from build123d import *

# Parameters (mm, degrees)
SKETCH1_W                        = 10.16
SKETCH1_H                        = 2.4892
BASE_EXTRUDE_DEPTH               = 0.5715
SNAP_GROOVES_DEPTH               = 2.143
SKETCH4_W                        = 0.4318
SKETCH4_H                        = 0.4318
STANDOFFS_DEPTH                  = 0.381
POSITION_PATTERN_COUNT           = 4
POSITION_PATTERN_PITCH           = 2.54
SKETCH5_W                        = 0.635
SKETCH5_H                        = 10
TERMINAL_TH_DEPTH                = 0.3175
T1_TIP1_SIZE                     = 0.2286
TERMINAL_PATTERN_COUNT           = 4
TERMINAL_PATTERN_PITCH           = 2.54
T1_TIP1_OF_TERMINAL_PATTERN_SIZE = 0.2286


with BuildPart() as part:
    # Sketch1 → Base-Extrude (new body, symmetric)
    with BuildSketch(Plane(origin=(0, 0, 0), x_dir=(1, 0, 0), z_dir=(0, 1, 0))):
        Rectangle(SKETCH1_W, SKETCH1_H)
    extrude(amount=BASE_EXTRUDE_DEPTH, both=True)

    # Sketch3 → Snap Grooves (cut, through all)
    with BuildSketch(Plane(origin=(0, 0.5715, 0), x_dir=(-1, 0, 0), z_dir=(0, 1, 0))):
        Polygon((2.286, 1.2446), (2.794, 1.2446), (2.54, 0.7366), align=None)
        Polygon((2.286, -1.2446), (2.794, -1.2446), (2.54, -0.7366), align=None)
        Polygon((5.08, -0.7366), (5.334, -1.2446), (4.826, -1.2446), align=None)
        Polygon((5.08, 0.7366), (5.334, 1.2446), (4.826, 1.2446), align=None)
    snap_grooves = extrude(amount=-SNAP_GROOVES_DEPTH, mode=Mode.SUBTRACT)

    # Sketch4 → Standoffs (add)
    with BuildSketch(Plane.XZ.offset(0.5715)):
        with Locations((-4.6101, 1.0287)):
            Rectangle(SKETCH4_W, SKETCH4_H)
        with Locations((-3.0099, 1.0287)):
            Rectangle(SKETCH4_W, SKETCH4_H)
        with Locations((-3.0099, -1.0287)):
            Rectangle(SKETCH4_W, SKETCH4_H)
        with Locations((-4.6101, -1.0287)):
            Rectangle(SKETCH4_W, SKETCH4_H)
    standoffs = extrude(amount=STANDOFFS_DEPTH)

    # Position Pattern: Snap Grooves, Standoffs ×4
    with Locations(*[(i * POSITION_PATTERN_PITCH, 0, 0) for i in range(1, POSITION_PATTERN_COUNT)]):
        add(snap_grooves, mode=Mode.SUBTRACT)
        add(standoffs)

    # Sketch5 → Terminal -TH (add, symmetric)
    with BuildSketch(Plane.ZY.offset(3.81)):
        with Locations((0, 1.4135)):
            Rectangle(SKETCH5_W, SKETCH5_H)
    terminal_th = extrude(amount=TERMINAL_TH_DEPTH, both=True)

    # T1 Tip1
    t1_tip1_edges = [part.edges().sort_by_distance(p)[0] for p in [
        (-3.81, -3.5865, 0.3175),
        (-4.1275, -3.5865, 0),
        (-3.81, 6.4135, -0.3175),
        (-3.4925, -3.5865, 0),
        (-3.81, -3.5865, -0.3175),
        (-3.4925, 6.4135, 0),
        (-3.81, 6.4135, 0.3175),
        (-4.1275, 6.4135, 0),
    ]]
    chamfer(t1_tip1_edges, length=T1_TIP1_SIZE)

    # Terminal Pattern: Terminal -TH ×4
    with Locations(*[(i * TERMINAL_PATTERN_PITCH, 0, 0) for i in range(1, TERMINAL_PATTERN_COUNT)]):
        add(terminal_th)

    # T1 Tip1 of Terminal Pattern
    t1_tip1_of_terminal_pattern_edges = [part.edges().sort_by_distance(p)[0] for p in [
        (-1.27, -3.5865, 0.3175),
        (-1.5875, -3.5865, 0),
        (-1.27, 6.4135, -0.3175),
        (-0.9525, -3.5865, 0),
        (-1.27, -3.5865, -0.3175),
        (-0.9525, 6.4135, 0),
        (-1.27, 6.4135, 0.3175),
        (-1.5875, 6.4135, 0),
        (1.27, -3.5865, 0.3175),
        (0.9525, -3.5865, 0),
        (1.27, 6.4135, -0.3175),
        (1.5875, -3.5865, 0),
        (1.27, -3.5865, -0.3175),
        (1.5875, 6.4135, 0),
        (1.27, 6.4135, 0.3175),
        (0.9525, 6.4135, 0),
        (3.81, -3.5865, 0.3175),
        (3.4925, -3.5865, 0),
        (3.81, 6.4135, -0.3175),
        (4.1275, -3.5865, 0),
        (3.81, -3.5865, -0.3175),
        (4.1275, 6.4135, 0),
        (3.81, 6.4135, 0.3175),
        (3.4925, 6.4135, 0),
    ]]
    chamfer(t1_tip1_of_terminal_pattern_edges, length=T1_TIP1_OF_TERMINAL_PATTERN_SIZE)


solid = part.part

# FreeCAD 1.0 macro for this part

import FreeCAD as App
import Part
import Sketcher

V = App.Vector
Q = App.Units.Quantity


def edges_at(feature, points):
    """Names of the edges that pass closest to the given points."""
    edges = feature.Shape.Edges
    near = lambda p: min(range(len(edges)), key=lambda i: edges[i].distToShape(Part.Vertex(*p))[0])
    return sorted({f"Edge{near(p) + 1}" for p in points})

doc = App.newDocument("Part")
body = doc.addObject("PartDesign::Body", "Body")

sketch1 = body.newObject("Sketcher::SketchObject", "Sketch")
sketch1.AttachmentSupport = (doc.getObject("XZ_Plane"), [""])
sketch1.MapMode = "FlatFace"
sketch1.addGeometry(Part.LineSegment(V(-5.1, -1.2, 0), V(-5.1, 1.2, 0)), False)
sketch1.addGeometry(Part.LineSegment(V(-5.1, 1.2, 0), V(5.1, 1.2, 0)), False)
sketch1.addGeometry(Part.LineSegment(V(5.1, 1.2, 0), V(5.1, -1.2, 0)), False)
sketch1.addGeometry(Part.LineSegment(V(5.1, -1.2, 0), V(-5.1, -1.2, 0)), False)
sketch1.addConstraint(Sketcher.Constraint("Coincident", 0, 2, 1, 1))
sketch1.addConstraint(Sketcher.Constraint("Coincident", 1, 2, 2, 1))
sketch1.addConstraint(Sketcher.Constraint("Coincident", 2, 2, 3, 1))
sketch1.addConstraint(Sketcher.Constraint("Coincident", 3, 2, 0, 1))
sketch1.addConstraint(Sketcher.Constraint("Vertical", 0))
sketch1.addConstraint(Sketcher.Constraint("Horizontal", 1))
sketch1.addConstraint(Sketcher.Constraint("Vertical", 2))
sketch1.addConstraint(Sketcher.Constraint("Horizontal", 3))
sketch1.addConstraint(Sketcher.Constraint("Symmetric", 0, 2, 2, 2, -1, 1))
sketch1.addConstraint(Sketcher.Constraint("DistanceX", 1, 1, 1, 2, Q("0.4 in")))
sketch1.addConstraint(Sketcher.Constraint("DistanceY", 0, 1, 0, 2, Q("0.098 in")))
pad1 = body.newObject("PartDesign::Pad", "Pad")
pad1.Profile = sketch1
pad1.Length = Q("0.045 in")
pad1.Midplane = True

sketch2 = body.newObject("Sketcher::SketchObject", "Sketch001")
sketch2.AttachmentSupport = (doc.getObject("XZ_Plane"), [""])
sketch2.MapMode = "FlatFace"
sketch2.AttachmentOffset = App.Placement(V(0, 0, -0.0225 * 25.4), App.Rotation())
sketch2.addGeometry(Part.LineSegment(V(-2.8, 1.2, 0), V(-2.3, 1.2, 0)), False)
sketch2.addGeometry(Part.LineSegment(V(-2.3, 1.2, 0), V(-2.5, 0.7, 0)), False)
sketch2.addGeometry(Part.LineSegment(V(-2.5, 0.7, 0), V(-2.8, 1.2, 0)), False)
sketch2.addGeometry(Part.LineSegment(V(-2.3, -1.2, 0), V(-2.8, -1.2, 0)), False)
sketch2.addGeometry(Part.LineSegment(V(-2.8, -1.2, 0), V(-2.5, -0.7, 0)), False)
sketch2.addGeometry(Part.LineSegment(V(-2.5, -0.7, 0), V(-2.3, -1.2, 0)), False)
sketch2.addGeometry(Part.LineSegment(V(-5.3, -1.2, 0), V(-5.1, -0.7, 0)), False)
sketch2.addGeometry(Part.LineSegment(V(-5.1, -0.7, 0), V(-4.8, -1.2, 0)), False)
sketch2.addGeometry(Part.LineSegment(V(-4.8, -1.2, 0), V(-5.3, -1.2, 0)), False)
sketch2.addGeometry(Part.LineSegment(V(-5.1, 0.7, 0), V(-5.3, 1.2, 0)), False)
sketch2.addGeometry(Part.LineSegment(V(-5.3, 1.2, 0), V(-4.8, 1.2, 0)), False)
sketch2.addGeometry(Part.LineSegment(V(-4.8, 1.2, 0), V(-5.1, 0.7, 0)), False)
sketch2.addConstraint(Sketcher.Constraint("Coincident", 0, 2, 1, 1))
sketch2.addConstraint(Sketcher.Constraint("Coincident", 1, 2, 2, 1))
sketch2.addConstraint(Sketcher.Constraint("Coincident", 2, 2, 0, 1))
sketch2.addConstraint(Sketcher.Constraint("Coincident", 3, 2, 4, 1))
sketch2.addConstraint(Sketcher.Constraint("Coincident", 4, 2, 5, 1))
sketch2.addConstraint(Sketcher.Constraint("Coincident", 5, 2, 3, 1))
sketch2.addConstraint(Sketcher.Constraint("Coincident", 6, 2, 7, 1))
sketch2.addConstraint(Sketcher.Constraint("Coincident", 7, 2, 8, 1))
sketch2.addConstraint(Sketcher.Constraint("Coincident", 8, 2, 6, 1))
sketch2.addConstraint(Sketcher.Constraint("Coincident", 9, 2, 10, 1))
sketch2.addConstraint(Sketcher.Constraint("Coincident", 10, 2, 11, 1))
sketch2.addConstraint(Sketcher.Constraint("Coincident", 11, 2, 9, 1))
sketch2.addConstraint(Sketcher.Constraint("Horizontal", 0))
sketch2.addConstraint(Sketcher.Constraint("Horizontal", 3))
sketch2.addConstraint(Sketcher.Constraint("Horizontal", 8))
sketch2.addConstraint(Sketcher.Constraint("Horizontal", 10))
sketch2.addConstraint(Sketcher.Constraint("Symmetric", 2, 2, 3, 2, -1))
sketch2.addConstraint(Sketcher.Constraint("Symmetric", 1, 2, 4, 2, -1))
sketch2.addConstraint(Sketcher.Constraint("Symmetric", 8, 2, 9, 2, -1))
sketch2.addConstraint(Sketcher.Constraint("Symmetric", 6, 2, 11, 2, -1))
sketch2.addConstraint(Sketcher.Constraint("Parallel", 1, 4))
sketch2.addConstraint(Sketcher.Constraint("Parallel", 2, 5))
sketch2.addConstraint(Sketcher.Constraint("Parallel", 4, 6))
sketch2.addConstraint(Sketcher.Constraint("Parallel", 5, 7))
sketch2.addConstraint(Sketcher.Constraint("Parallel", 6, 11))
sketch2.addConstraint(Sketcher.Constraint("Horizontal", 4, 2, 6, 2))
sketch2.addConstraint(Sketcher.Constraint("Horizontal", 5, 2, 7, 2))
sketch2.addConstraint(Sketcher.Constraint("DistanceX", 0, 1, 0, 2, Q("0.02 in")))
sketch2.addConstraint(Sketcher.Constraint("DistanceX", 1, 2, -1, 1, Q("0.1 in")))
sketch2.addConstraint(Sketcher.Constraint("DistanceX", 6, 2, -1, 1, Q("0.2 in")))
sketch2.addConstraint(Sketcher.Constraint("DistanceY", 1, 2, 0, 2, Q("0.02 in")))
sketch2.addConstraint(Sketcher.Constraint("DistanceY", -1, 1, 0, 2, Q("0.049 in")))
pocket1 = body.newObject("PartDesign::Pocket", "Pocket")
pocket1.Profile = sketch2
pocket1.Type = "ThroughAll"
pocket1.Reversed = True

sketch3 = body.newObject("Sketcher::SketchObject", "Sketch002")
sketch3.AttachmentSupport = (doc.getObject("XZ_Plane"), [""])
sketch3.MapMode = "FlatFace"
sketch3.AttachmentOffset = App.Placement(V(0, 0, 0.0225 * 25.4), App.Rotation())
sketch3.addGeometry(Part.LineSegment(V(-4.83, 1.24, 0), V(-4.83, 0.81, 0)), False)
sketch3.addGeometry(Part.LineSegment(V(-4.83, 0.81, 0), V(-4.39, 0.81, 0)), False)
sketch3.addGeometry(Part.LineSegment(V(-4.39, 0.81, 0), V(-4.39, 1.24, 0)), False)
sketch3.addGeometry(Part.LineSegment(V(-4.39, 1.24, 0), V(-4.83, 1.24, 0)), False)
sketch3.addGeometry(Part.LineSegment(V(-3.23, 1.24, 0), V(-3.23, 0.81, 0)), False)
sketch3.addGeometry(Part.LineSegment(V(-3.23, 0.81, 0), V(-2.79, 0.81, 0)), False)
sketch3.addGeometry(Part.LineSegment(V(-2.79, 0.81, 0), V(-2.79, 1.24, 0)), False)
sketch3.addGeometry(Part.LineSegment(V(-2.79, 1.24, 0), V(-3.23, 1.24, 0)), False)
sketch3.addGeometry(Part.LineSegment(V(-3.23, -0.81, 0), V(-3.23, -1.24, 0)), False)
sketch3.addGeometry(Part.LineSegment(V(-3.23, -1.24, 0), V(-2.79, -1.24, 0)), False)
sketch3.addGeometry(Part.LineSegment(V(-2.79, -1.24, 0), V(-2.79, -0.81, 0)), False)
sketch3.addGeometry(Part.LineSegment(V(-2.79, -0.81, 0), V(-3.23, -0.81, 0)), False)
sketch3.addGeometry(Part.LineSegment(V(-4.83, -0.81, 0), V(-4.83, -1.24, 0)), False)
sketch3.addGeometry(Part.LineSegment(V(-4.83, -1.24, 0), V(-4.39, -1.24, 0)), False)
sketch3.addGeometry(Part.LineSegment(V(-4.39, -1.24, 0), V(-4.39, -0.81, 0)), False)
sketch3.addGeometry(Part.LineSegment(V(-4.39, -0.81, 0), V(-4.83, -0.81, 0)), False)
sketch3.addConstraint(Sketcher.Constraint("Coincident", 0, 2, 1, 1))
sketch3.addConstraint(Sketcher.Constraint("Coincident", 1, 2, 2, 1))
sketch3.addConstraint(Sketcher.Constraint("Coincident", 2, 2, 3, 1))
sketch3.addConstraint(Sketcher.Constraint("Coincident", 3, 2, 0, 1))
sketch3.addConstraint(Sketcher.Constraint("Coincident", 4, 2, 5, 1))
sketch3.addConstraint(Sketcher.Constraint("Coincident", 5, 2, 6, 1))
sketch3.addConstraint(Sketcher.Constraint("Coincident", 6, 2, 7, 1))
sketch3.addConstraint(Sketcher.Constraint("Coincident", 7, 2, 4, 1))
sketch3.addConstraint(Sketcher.Constraint("Coincident", 8, 2, 9, 1))
sketch3.addConstraint(Sketcher.Constraint("Coincident", 9, 2, 10, 1))
sketch3.addConstraint(Sketcher.Constraint("Coincident", 10, 2, 11, 1))
sketch3.addConstraint(Sketcher.Constraint("Coincident", 11, 2, 8, 1))
sketch3.addConstraint(Sketcher.Constraint("Coincident", 12, 2, 13, 1))
sketch3.addConstraint(Sketcher.Constraint("Coincident", 13, 2, 14, 1))
sketch3.addConstraint(Sketcher.Constraint("Coincident", 14, 2, 15, 1))
sketch3.addConstraint(Sketcher.Constraint("Coincident", 15, 2, 12, 1))
sketch3.addConstraint(Sketcher.Constraint("Vertical", 0))
sketch3.addConstraint(Sketcher.Constraint("Horizontal", 1))
sketch3.addConstraint(Sketcher.Constraint("Vertical", 2))
sketch3.addConstraint(Sketcher.Constraint("Horizontal", 3))
sketch3.addConstraint(Sketcher.Constraint("Vertical", 4))
sketch3.addConstraint(Sketcher.Constraint("Horizontal", 5))
sketch3.addConstraint(Sketcher.Constraint("Vertical", 6))
sketch3.addConstraint(Sketcher.Constraint("Horizontal", 7))
sketch3.addConstraint(Sketcher.Constraint("Vertical", 8))
sketch3.addConstraint(Sketcher.Constraint("Horizontal", 9))
sketch3.addConstraint(Sketcher.Constraint("Vertical", 10))
sketch3.addConstraint(Sketcher.Constraint("Horizontal", 11))
sketch3.addConstraint(Sketcher.Constraint("Vertical", 12))
sketch3.addConstraint(Sketcher.Constraint("Horizontal", 13))
sketch3.addConstraint(Sketcher.Constraint("Vertical", 14))
sketch3.addConstraint(Sketcher.Constraint("Horizontal", 15))
sketch3.addConstraint(Sketcher.Constraint("Symmetric", 7, 2, 8, 2, -1))
sketch3.addConstraint(Sketcher.Constraint("Symmetric", 5, 2, 10, 2, -1))
sketch3.addConstraint(Sketcher.Constraint("Symmetric", 3, 2, 12, 2, -1))
sketch3.addConstraint(Sketcher.Constraint("Symmetric", 1, 2, 14, 2, -1))
sketch3.addConstraint(Sketcher.Constraint("Horizontal", 1, 2, 4, 2))
sketch3.addConstraint(Sketcher.Constraint("Horizontal", 3, 2, 6, 2))
sketch3.addConstraint(Sketcher.Constraint("Equal", 3, 5))
sketch3.addConstraint(Sketcher.Constraint("Equal", 15, 0))
sketch3.addConstraint(Sketcher.Constraint("DistanceX", 1, 1, 1, 2, Q("0.017 in")))
sketch3.addConstraint(Sketcher.Constraint("DistanceX", 0, 2, -1, 1, Q("0.19 in")))
sketch3.addConstraint(Sketcher.Constraint("DistanceX", 5, 2, -1, 1, Q("0.11 in")))
sketch3.addConstraint(Sketcher.Constraint("DistanceY", -1, 1, 0, 2, Q("0.032 in")))
pad2 = body.newObject("PartDesign::Pad", "Pad001")
pad2.Profile = sketch3
pad2.Length = Q("0.015 in")
doc.recompute()

linearpattern = body.newObject("PartDesign::LinearPattern", "LinearPattern")
linearpattern.Originals = [pocket1, pad2]
linearpattern.Direction = (doc.getObject("X_Axis"), [""])
linearpattern.Mode = "offset"
linearpattern.Offset = Q("0.1 in")
linearpattern.Occurrences = 4
body.Tip = linearpattern

sketch4 = body.newObject("Sketcher::SketchObject", "Sketch003")
sketch4.AttachmentSupport = (doc.getObject("YZ_Plane"), [""])
sketch4.MapMode = "FlatFace"
sketch4.AttachmentOffset = App.Placement(V(0, 0, -0.15 * 25.4), App.Rotation())
sketch4.addGeometry(Part.LineSegment(V(6.4, -0.3, 0), V(-3.6, -0.3, 0)), False)
sketch4.addGeometry(Part.LineSegment(V(-3.6, -0.3, 0), V(-3.6, 0.3, 0)), False)
sketch4.addGeometry(Part.LineSegment(V(-3.6, 0.3, 0), V(6.4, 0.3, 0)), False)
sketch4.addGeometry(Part.LineSegment(V(6.4, 0.3, 0), V(6.4, -0.3, 0)), False)
sketch4.addConstraint(Sketcher.Constraint("Coincident", 0, 2, 1, 1))
sketch4.addConstraint(Sketcher.Constraint("Coincident", 1, 2, 2, 1))
sketch4.addConstraint(Sketcher.Constraint("Coincident", 2, 2, 3, 1))
sketch4.addConstraint(Sketcher.Constraint("Coincident", 3, 2, 0, 1))
sketch4.addConstraint(Sketcher.Constraint("Horizontal", 0))
sketch4.addConstraint(Sketcher.Constraint("Vertical", 1))
sketch4.addConstraint(Sketcher.Constraint("Horizontal", 2))
sketch4.addConstraint(Sketcher.Constraint("Vertical", 3))
sketch4.addConstraint(Sketcher.Constraint("DistanceY", 1, 1, 1, 2, Q("0.025 in")))
sketch4.addConstraint(Sketcher.Constraint("DistanceX", 0, 2, 0, 1, 10.0))
sketch4.addConstraint(Sketcher.Constraint("DistanceY", 0, 2, -1, 1, Q("0.0125 in")))
sketch4.addConstraint(Sketcher.Constraint("DistanceX", -1, 1, 2, 2, Q("0.2525 in")))
pad3 = body.newObject("PartDesign::Pad", "Pad002")
pad3.Profile = sketch4
pad3.Length = Q("0.025 in")
pad3.Midplane = True
doc.recompute()

chamfer = body.newObject("PartDesign::Chamfer", "Chamfer")
chamfer.Base = (pad3, edges_at(pad3, [
    (-3.81, -3.587, 0.318),
    (-4.128, -3.587, 0),
    (-3.81, 6.413, -0.318),
    (-3.493, -3.587, 0),
    (-3.81, -3.587, -0.318),
    (-3.493, 6.413, 0),
    (-3.81, 6.413, 0.318),
    (-4.128, 6.413, 0),
]))
chamfer.Size = Q("0.009 in")
doc.recompute()

linearpattern2 = body.newObject("PartDesign::LinearPattern", "LinearPattern001")
linearpattern2.Originals = [pad3]
linearpattern2.Direction = (doc.getObject("X_Axis"), [""])
linearpattern2.Mode = "offset"
linearpattern2.Offset = Q("0.1 in")
linearpattern2.Occurrences = 4
body.Tip = linearpattern2
doc.recompute()

chamfer2 = body.newObject("PartDesign::Chamfer", "Chamfer001")
chamfer2.Base = (linearpattern2, edges_at(linearpattern2, [
    (-1.27, -3.587, 0.318),
    (-1.587, -3.587, 0),
    (-1.27, 6.413, -0.318),
    (-0.953, -3.587, 0),
    (-1.27, -3.587, -0.318),
    (-0.953, 6.413, 0),
    (-1.27, 6.413, 0.318),
    (-1.587, 6.413, 0),
    (1.27, -3.587, 0.318),
    (0.953, -3.587, 0),
    (1.27, 6.413, -0.318),
    (1.587, -3.587, 0),
    (1.27, -3.587, -0.318),
    (1.587, 6.413, 0),
    (1.27, 6.413, 0.318),
    (0.953, 6.413, 0),
    (3.81, -3.587, 0.318),
    (3.493, -3.587, 0),
    (3.81, 6.413, -0.318),
    (4.128, -3.587, 0),
    (3.81, -3.587, -0.318),
    (4.128, 6.413, 0),
    (3.81, 6.413, 0.318),
    (3.493, 6.413, 0),
]))
chamfer2.Size = Q("0.009 in")

doc.recompute()
